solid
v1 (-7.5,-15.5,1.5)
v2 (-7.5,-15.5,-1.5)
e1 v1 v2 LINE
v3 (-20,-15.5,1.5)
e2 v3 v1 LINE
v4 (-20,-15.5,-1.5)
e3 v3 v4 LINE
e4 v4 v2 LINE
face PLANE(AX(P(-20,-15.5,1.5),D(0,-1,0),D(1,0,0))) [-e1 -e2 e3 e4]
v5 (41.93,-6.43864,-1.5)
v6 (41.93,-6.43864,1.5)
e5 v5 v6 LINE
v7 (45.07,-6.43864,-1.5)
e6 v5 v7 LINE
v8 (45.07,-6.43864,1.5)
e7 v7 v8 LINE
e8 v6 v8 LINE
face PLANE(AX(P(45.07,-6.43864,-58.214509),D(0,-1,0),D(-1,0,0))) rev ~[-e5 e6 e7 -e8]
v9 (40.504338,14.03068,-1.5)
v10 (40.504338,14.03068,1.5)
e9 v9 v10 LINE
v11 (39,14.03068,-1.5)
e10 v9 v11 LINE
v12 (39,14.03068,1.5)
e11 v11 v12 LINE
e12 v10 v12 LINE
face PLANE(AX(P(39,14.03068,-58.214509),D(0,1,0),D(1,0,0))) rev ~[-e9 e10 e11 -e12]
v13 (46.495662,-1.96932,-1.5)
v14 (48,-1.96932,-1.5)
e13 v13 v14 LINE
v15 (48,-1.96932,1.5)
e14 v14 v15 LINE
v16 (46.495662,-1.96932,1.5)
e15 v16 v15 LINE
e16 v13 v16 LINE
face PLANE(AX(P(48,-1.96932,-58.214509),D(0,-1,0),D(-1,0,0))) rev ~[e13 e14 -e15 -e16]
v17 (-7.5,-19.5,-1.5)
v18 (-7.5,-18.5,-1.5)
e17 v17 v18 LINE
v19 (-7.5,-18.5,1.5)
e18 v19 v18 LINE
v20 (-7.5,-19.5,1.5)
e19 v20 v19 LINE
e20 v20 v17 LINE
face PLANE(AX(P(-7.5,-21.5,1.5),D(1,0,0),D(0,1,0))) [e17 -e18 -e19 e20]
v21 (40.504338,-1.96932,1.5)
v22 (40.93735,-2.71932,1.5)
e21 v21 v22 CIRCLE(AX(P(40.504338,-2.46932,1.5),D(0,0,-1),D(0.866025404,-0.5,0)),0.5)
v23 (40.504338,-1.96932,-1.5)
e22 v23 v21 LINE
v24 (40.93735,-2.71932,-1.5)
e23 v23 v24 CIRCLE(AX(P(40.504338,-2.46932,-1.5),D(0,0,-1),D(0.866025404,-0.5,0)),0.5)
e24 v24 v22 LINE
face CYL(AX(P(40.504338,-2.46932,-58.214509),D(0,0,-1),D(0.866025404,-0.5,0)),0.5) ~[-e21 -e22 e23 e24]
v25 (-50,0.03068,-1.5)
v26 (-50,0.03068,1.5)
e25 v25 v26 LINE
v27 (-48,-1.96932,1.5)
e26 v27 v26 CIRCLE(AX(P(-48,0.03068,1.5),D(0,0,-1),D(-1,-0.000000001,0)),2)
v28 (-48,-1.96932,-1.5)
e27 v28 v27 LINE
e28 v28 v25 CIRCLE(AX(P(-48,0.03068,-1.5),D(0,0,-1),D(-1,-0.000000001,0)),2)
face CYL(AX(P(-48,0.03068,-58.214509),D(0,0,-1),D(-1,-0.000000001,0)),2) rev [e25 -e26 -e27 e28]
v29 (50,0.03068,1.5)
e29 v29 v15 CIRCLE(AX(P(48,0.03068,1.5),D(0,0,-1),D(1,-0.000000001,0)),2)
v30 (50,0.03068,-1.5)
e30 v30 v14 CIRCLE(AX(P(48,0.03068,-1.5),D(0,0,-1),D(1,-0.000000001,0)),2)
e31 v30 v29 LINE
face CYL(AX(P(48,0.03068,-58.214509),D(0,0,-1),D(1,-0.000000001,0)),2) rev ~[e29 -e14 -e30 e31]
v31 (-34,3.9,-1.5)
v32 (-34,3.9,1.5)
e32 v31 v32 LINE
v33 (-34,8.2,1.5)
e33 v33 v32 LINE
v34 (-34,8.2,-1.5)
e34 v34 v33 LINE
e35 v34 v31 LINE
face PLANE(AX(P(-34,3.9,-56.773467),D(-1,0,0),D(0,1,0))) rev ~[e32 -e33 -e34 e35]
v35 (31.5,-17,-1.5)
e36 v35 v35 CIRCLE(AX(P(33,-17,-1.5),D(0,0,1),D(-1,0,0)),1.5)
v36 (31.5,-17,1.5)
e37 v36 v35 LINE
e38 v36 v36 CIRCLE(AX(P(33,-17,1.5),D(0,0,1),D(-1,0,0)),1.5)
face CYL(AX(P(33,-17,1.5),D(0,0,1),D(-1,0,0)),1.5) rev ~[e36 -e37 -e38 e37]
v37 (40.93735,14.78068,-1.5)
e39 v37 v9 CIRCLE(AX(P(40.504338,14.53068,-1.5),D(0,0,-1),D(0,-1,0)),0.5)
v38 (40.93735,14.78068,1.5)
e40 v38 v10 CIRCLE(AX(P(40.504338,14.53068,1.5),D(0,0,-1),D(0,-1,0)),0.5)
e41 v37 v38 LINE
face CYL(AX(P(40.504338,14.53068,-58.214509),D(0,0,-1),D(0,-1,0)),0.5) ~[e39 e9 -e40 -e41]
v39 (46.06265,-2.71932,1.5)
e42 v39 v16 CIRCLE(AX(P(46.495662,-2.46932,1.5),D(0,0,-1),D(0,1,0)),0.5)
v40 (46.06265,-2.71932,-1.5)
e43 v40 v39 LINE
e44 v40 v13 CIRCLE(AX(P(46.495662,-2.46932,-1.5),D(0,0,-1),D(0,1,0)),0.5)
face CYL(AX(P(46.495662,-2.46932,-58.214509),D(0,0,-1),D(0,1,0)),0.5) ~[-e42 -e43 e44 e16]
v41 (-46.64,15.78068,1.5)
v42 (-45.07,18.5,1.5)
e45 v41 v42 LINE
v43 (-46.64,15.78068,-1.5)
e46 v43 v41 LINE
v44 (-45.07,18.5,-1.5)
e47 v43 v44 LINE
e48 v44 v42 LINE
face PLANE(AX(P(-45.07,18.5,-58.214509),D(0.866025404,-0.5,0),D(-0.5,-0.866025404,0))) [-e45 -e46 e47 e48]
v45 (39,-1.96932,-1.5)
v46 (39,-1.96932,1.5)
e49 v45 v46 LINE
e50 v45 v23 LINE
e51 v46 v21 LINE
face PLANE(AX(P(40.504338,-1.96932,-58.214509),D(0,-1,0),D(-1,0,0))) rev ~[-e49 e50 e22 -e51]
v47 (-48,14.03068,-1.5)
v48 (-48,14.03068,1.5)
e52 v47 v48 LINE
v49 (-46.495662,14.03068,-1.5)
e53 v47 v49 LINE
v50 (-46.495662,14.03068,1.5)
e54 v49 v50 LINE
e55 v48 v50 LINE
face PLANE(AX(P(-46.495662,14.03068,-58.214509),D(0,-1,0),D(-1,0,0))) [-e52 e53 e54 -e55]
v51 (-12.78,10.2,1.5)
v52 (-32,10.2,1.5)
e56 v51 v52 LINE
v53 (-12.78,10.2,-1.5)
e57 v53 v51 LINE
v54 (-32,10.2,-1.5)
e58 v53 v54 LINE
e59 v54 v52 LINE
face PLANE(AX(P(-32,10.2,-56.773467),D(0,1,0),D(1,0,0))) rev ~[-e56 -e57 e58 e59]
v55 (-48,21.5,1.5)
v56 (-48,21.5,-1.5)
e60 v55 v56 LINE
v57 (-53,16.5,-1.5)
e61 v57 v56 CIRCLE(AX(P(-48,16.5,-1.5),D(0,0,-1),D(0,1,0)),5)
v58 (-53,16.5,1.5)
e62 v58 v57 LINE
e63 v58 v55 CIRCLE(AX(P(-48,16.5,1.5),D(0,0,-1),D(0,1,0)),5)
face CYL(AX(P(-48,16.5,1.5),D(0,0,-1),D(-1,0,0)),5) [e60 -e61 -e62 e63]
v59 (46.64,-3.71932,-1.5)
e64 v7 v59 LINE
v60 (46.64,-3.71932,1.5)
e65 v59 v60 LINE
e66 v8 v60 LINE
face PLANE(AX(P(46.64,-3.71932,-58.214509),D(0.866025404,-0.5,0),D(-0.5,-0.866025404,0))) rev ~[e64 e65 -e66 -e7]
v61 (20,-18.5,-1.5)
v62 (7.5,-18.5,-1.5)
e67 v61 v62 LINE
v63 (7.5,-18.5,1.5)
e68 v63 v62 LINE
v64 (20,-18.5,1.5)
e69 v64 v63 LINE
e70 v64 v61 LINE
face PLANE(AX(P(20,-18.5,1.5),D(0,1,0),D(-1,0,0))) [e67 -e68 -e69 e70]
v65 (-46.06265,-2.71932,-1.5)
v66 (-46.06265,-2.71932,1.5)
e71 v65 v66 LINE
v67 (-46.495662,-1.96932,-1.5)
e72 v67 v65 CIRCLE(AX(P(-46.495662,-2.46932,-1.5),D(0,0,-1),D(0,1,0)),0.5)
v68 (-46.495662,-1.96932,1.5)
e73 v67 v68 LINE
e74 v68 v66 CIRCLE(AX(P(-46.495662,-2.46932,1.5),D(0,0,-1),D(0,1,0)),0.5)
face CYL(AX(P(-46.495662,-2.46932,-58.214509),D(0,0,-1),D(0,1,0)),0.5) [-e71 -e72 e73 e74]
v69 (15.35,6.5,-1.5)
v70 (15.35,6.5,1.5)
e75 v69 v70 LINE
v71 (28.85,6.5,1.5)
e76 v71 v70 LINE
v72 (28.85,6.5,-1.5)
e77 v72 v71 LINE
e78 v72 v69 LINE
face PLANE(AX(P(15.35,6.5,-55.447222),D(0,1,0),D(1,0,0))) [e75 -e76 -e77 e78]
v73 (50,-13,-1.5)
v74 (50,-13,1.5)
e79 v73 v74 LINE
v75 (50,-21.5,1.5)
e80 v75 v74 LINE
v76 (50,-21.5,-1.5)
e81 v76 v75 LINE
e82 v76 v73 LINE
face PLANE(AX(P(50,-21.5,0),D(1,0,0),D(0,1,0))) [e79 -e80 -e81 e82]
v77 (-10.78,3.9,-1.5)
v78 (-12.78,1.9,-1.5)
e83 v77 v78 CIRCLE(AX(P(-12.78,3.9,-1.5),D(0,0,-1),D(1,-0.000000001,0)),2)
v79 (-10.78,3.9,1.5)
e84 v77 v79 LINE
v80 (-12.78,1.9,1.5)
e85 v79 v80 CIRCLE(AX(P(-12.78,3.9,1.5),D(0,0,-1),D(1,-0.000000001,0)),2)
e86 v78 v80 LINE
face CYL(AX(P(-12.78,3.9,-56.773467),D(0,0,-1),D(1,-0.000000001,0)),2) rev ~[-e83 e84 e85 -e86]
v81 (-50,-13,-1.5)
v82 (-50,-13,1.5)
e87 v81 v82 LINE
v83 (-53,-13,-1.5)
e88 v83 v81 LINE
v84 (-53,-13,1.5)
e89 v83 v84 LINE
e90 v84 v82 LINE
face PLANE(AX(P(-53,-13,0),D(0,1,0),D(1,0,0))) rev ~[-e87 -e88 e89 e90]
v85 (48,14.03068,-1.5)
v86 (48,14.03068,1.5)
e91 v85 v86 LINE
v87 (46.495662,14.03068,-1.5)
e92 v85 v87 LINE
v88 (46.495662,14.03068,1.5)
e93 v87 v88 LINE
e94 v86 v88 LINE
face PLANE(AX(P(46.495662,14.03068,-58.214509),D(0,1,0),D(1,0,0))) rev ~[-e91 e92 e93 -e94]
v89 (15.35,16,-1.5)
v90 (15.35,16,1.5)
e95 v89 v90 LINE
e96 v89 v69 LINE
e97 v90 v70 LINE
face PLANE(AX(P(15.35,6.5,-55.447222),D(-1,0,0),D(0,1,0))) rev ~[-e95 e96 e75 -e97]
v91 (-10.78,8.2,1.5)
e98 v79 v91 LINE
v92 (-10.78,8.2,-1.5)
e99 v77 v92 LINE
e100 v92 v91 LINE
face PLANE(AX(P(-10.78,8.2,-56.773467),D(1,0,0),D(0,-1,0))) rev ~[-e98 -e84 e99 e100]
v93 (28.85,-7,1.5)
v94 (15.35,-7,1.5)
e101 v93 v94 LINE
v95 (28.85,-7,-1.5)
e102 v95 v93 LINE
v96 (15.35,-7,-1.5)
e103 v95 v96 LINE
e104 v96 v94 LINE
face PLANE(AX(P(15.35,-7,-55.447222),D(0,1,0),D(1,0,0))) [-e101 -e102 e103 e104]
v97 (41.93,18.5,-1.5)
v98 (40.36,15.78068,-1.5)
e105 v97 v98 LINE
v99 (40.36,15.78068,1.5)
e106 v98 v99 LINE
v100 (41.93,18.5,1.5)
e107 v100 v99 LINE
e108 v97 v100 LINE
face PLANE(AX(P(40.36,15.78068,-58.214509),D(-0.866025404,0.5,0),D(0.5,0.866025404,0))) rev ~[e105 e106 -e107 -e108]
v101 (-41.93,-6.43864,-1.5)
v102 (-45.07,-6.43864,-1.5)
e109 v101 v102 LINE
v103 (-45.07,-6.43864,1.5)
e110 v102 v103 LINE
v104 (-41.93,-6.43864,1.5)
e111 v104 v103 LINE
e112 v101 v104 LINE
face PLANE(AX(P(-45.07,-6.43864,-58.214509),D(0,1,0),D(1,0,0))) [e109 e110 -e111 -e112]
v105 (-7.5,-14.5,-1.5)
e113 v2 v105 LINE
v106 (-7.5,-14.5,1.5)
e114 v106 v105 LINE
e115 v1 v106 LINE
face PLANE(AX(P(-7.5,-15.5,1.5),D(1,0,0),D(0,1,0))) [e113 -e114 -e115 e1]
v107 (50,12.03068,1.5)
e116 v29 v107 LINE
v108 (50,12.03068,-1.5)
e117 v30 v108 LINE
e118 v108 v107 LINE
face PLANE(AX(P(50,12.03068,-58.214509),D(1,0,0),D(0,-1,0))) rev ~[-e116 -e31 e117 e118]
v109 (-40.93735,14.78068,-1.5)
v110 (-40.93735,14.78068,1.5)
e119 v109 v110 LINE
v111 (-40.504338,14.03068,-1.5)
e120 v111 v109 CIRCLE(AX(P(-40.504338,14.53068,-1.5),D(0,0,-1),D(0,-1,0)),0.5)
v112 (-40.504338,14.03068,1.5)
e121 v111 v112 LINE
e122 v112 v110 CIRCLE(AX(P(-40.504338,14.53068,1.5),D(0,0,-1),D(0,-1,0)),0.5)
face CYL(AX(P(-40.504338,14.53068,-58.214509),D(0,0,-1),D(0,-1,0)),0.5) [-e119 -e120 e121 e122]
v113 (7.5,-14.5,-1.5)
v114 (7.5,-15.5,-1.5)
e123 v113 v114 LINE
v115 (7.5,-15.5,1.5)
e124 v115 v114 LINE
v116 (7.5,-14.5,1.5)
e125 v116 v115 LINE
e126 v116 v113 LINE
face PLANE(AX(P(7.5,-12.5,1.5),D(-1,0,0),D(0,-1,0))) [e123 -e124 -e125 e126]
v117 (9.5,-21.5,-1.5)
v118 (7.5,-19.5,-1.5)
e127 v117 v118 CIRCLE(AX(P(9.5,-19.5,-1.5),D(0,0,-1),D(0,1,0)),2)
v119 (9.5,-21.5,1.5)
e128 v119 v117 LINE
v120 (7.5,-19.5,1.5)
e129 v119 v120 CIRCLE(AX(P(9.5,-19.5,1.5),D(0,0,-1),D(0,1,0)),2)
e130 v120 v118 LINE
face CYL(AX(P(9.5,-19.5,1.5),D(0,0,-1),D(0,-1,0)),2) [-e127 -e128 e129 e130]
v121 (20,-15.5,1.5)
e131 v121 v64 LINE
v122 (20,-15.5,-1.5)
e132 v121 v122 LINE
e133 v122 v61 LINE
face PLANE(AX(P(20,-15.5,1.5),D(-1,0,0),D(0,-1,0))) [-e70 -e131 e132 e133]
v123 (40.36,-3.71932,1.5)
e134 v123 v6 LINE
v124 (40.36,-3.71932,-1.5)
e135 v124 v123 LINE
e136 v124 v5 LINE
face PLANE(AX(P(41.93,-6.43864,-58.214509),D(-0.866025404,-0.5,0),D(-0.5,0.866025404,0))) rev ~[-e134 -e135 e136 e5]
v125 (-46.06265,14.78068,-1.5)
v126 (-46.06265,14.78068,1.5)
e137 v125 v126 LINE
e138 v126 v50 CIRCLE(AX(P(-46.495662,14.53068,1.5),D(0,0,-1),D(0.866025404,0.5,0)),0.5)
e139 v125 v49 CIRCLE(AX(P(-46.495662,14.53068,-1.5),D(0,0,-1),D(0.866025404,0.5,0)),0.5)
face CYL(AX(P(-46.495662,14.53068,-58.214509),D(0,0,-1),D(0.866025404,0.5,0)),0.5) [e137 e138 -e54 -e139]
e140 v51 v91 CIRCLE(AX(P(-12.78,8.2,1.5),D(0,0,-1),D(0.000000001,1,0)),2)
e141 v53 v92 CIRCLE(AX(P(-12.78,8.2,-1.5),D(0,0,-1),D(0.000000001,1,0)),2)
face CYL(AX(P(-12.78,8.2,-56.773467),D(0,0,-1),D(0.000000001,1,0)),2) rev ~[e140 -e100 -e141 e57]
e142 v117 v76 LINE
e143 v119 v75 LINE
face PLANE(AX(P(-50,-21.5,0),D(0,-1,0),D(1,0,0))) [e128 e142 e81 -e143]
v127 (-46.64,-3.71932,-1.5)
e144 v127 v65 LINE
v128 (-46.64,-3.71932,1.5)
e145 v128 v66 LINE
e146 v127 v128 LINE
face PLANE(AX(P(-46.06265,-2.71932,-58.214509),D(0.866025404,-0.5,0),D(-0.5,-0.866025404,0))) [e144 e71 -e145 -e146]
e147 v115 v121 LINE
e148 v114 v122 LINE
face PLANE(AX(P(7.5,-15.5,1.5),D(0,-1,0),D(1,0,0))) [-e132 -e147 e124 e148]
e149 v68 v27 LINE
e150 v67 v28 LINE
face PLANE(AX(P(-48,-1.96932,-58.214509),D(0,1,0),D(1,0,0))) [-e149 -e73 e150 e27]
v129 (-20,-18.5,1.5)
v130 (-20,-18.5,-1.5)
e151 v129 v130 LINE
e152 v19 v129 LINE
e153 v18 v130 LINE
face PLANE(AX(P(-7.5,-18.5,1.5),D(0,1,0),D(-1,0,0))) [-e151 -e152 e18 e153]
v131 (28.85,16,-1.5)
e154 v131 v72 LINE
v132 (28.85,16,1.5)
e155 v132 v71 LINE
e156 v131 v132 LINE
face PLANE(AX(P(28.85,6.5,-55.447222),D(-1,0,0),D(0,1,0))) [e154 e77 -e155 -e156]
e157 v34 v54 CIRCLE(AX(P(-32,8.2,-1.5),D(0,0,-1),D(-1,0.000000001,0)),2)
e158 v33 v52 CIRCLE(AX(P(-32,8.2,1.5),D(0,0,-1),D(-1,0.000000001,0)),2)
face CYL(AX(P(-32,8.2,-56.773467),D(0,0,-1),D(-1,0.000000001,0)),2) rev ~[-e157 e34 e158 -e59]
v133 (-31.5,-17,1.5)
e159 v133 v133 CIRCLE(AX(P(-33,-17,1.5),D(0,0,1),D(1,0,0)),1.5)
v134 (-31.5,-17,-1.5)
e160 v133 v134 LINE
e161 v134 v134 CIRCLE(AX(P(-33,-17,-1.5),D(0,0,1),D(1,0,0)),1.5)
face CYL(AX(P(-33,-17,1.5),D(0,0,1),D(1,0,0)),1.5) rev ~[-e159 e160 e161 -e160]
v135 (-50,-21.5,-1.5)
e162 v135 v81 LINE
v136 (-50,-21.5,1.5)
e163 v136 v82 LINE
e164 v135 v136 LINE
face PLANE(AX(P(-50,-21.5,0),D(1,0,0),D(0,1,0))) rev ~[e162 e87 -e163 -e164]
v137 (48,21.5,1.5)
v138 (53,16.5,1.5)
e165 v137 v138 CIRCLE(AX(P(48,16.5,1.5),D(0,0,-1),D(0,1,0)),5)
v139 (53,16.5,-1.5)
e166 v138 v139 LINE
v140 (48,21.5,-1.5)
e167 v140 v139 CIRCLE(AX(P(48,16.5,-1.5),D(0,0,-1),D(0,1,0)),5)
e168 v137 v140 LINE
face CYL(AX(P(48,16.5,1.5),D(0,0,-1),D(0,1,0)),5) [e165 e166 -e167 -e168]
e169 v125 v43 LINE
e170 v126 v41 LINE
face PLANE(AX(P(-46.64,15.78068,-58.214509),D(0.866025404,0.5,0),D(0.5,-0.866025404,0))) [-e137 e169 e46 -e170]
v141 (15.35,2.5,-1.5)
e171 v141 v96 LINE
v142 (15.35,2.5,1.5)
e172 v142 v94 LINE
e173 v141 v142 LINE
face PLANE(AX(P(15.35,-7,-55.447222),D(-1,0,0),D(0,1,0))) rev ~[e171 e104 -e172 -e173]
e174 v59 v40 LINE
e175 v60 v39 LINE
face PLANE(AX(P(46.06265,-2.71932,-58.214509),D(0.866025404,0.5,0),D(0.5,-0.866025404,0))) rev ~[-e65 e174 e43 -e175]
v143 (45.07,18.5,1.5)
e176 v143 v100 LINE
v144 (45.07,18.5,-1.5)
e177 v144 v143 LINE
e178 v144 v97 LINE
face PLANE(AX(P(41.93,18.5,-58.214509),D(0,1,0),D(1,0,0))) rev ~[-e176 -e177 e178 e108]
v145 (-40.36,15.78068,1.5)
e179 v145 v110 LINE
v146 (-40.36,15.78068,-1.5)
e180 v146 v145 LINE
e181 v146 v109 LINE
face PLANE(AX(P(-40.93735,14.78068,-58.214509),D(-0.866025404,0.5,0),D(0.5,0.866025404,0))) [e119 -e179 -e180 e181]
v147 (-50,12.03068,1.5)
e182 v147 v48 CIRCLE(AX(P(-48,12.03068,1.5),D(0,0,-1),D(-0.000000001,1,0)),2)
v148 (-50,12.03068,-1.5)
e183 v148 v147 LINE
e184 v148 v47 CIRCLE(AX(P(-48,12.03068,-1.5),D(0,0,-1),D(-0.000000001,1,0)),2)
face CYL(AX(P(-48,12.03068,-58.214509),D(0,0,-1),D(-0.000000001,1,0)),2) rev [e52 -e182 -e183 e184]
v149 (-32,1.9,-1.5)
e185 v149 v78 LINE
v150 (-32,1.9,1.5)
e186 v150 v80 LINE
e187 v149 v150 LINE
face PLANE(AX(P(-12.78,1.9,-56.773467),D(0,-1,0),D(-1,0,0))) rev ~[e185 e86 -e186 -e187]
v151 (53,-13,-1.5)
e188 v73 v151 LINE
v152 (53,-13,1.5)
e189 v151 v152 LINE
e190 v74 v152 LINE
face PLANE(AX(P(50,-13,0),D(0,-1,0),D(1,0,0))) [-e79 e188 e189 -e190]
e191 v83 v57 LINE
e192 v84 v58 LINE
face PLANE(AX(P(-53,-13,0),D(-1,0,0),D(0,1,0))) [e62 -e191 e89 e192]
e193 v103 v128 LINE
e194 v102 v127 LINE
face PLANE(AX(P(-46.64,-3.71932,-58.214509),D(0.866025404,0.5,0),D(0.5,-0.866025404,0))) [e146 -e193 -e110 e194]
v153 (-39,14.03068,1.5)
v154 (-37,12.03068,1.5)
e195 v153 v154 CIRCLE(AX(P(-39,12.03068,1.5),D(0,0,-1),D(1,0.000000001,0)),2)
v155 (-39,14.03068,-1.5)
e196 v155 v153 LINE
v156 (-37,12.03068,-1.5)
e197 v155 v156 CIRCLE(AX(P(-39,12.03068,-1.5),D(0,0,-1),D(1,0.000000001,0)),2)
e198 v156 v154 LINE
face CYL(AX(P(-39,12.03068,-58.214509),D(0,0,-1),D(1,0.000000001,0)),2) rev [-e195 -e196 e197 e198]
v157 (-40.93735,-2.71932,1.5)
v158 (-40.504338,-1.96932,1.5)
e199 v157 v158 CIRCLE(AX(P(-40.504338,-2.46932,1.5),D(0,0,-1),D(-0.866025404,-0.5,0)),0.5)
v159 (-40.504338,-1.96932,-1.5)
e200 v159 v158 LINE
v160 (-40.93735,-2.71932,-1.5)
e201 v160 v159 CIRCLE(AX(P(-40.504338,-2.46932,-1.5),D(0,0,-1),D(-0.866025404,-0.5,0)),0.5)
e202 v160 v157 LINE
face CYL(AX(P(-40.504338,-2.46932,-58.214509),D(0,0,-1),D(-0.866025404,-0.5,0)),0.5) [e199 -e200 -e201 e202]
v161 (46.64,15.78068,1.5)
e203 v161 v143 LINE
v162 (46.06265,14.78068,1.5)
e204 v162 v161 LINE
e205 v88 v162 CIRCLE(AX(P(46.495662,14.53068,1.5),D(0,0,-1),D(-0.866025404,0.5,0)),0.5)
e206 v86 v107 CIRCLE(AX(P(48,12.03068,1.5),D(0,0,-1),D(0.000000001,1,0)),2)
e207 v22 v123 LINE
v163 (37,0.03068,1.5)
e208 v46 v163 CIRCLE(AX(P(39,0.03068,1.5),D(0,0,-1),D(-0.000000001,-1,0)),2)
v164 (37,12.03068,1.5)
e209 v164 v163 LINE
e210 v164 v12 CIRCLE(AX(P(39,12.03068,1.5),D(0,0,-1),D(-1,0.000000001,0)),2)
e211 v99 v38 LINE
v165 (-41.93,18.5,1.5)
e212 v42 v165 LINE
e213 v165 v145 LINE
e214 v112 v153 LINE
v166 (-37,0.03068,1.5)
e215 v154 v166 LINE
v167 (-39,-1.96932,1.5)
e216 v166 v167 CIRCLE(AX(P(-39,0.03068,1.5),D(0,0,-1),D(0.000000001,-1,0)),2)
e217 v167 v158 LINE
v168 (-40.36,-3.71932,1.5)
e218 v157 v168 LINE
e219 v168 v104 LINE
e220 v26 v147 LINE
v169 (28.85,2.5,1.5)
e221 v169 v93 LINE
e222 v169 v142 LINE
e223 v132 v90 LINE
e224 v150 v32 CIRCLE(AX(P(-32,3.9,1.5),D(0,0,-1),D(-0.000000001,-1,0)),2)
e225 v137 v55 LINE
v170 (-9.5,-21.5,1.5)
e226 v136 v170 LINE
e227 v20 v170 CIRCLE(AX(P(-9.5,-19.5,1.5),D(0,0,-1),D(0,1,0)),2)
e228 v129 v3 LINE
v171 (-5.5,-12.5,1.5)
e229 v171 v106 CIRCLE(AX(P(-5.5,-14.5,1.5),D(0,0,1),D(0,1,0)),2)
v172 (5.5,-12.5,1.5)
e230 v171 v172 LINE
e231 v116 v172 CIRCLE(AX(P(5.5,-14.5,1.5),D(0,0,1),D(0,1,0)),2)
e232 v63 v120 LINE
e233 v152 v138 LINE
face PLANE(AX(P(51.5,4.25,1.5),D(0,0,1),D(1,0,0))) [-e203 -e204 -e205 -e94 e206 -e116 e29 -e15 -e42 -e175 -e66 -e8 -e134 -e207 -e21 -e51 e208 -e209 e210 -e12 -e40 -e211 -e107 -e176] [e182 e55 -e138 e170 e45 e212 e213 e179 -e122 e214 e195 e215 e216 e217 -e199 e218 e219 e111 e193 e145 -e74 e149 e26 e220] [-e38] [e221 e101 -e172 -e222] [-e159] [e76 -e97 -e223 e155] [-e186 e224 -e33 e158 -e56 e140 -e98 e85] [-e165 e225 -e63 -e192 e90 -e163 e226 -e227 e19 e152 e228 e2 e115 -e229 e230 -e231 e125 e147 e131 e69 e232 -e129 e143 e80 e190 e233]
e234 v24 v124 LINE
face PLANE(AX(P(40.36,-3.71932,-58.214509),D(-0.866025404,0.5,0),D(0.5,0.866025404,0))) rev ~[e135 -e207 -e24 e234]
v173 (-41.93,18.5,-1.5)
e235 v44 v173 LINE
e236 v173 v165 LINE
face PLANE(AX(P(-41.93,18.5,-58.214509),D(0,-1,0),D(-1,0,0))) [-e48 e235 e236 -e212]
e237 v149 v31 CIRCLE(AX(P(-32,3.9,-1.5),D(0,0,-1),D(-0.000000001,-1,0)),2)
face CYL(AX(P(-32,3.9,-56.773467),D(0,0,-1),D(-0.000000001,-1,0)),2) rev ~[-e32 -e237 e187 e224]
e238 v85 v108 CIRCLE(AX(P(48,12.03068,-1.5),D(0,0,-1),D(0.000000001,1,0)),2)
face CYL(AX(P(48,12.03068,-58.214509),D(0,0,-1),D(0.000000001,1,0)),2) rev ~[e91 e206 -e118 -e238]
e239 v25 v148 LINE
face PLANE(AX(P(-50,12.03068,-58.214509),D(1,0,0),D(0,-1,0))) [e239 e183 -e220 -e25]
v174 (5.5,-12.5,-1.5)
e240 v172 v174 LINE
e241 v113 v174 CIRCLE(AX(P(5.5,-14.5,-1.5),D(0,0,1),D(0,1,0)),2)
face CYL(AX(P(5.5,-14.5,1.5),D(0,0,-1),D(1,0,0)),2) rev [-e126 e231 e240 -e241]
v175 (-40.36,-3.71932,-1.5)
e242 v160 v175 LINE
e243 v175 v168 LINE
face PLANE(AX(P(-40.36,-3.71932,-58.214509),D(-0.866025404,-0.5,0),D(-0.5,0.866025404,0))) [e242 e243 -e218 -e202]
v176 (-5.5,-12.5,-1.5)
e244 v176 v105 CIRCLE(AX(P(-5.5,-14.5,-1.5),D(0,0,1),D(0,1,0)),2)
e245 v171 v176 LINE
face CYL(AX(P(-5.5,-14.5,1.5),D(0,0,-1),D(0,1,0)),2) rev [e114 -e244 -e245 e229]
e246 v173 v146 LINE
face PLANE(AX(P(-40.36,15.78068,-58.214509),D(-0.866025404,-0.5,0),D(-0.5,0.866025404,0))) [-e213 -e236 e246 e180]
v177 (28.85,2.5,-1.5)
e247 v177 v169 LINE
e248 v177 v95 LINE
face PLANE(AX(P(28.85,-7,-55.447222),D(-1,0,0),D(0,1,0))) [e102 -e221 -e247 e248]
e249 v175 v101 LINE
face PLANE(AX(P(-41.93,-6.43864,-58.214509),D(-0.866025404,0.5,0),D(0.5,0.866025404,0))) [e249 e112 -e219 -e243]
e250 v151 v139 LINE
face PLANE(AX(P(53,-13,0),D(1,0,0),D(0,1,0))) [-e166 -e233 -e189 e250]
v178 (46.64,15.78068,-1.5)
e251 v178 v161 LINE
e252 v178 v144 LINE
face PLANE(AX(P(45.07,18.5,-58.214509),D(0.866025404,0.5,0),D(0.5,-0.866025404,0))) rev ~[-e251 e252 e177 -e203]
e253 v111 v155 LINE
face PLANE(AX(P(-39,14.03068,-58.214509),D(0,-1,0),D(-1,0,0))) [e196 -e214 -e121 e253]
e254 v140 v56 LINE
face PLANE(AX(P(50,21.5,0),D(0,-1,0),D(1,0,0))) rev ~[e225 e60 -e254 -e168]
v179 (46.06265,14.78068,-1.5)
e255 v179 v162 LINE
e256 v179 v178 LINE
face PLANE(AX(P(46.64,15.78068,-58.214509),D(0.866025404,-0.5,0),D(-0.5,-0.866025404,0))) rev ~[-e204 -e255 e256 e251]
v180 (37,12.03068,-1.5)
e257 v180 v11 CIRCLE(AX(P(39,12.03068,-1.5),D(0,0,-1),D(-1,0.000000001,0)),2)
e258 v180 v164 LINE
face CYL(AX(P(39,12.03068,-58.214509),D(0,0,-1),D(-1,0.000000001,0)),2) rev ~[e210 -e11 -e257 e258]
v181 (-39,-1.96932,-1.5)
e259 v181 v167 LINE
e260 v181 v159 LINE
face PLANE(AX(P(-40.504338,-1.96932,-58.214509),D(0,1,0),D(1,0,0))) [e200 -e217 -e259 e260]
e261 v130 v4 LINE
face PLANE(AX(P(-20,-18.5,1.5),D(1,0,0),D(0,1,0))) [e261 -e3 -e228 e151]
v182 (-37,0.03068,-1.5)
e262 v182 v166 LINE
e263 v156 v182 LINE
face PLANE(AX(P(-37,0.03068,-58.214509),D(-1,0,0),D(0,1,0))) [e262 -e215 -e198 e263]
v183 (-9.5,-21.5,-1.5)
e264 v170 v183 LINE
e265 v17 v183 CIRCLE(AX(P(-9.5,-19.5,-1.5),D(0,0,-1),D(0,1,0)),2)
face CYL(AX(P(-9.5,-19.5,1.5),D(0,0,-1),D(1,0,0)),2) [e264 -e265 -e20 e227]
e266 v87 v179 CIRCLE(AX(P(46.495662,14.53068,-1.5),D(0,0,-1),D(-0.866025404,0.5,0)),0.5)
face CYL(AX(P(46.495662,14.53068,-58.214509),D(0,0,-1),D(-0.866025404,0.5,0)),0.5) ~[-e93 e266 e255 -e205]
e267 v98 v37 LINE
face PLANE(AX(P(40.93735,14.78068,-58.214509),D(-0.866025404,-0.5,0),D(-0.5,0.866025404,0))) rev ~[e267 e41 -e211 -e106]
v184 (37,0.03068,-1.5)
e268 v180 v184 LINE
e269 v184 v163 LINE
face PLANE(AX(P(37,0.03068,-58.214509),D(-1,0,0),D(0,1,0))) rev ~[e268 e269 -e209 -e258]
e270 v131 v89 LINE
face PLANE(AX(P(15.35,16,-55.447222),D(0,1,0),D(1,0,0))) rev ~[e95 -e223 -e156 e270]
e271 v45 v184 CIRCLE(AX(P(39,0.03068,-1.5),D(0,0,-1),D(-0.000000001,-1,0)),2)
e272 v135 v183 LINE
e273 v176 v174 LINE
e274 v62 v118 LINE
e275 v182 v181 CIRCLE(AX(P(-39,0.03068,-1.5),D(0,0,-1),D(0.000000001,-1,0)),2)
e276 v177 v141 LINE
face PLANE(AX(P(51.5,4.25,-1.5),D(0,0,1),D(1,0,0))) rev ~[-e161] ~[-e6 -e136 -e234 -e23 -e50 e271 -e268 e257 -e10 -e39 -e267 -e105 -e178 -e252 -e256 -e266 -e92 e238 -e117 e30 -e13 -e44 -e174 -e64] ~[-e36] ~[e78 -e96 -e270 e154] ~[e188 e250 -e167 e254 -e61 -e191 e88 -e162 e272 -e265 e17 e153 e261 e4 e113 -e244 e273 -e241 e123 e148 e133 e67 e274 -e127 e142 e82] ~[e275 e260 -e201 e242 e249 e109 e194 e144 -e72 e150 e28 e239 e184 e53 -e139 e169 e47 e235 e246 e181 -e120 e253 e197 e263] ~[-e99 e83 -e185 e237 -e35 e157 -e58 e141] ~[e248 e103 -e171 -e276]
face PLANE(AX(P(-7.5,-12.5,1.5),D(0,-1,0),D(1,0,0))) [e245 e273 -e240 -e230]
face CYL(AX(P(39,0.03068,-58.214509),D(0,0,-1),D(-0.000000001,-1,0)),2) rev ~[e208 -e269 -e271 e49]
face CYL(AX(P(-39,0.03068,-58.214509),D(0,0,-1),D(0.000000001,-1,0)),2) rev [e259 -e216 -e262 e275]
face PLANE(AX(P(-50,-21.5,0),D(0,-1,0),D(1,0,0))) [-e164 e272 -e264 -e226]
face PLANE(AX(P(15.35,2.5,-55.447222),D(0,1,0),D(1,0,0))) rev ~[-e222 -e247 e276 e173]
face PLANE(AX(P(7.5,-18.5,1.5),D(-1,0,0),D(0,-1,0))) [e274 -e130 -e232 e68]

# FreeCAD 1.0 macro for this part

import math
import FreeCAD as App
import Part
import Sketcher

V = App.Vector
Q = App.Units.Quantity


def edges_at(feature, points):
    """Names of the edges that pass closest to the given points."""
    edges = feature.Shape.Edges
    near = lambda p: min(range(len(edges)), key=lambda i: edges[i].distToShape(Part.Vertex(*p))[0])
    return sorted({f"Edge{near(p) + 1}" for p in points})


def add_polygon(sketch, points):
    """Adds a closed chain of lines whose ends are joined by coincident constraints."""
    first, n = sketch.GeometryCount, len(points)
    for a, b in zip(points, points[1:] + points[:1]):
        sketch.addGeometry(Part.LineSegment(App.Vector(*a, 0), App.Vector(*b, 0)), False)
    for i in range(n):
        sketch.addConstraint(Sketcher.Constraint("Coincident", first + i, 2, first + (i + 1) % n, 1))

doc = App.newDocument("Part")
body = doc.addObject("PartDesign::Body", "Body")

sketch1 = doc.addObject("Sketcher::SketchObject", "Sketch")
body.addObject(sketch1)
sketch1.AttachmentSupport = (doc.XY_Plane, [""])
sketch1.MapMode = "FlatFace"
add_polygon(sketch1, [(-50, 22), (-50, -22), (50, -22), (50, 22)])
sketch1.addConstraint(Sketcher.Constraint("Vertical", 0))
sketch1.addConstraint(Sketcher.Constraint("Horizontal", 1))
sketch1.addConstraint(Sketcher.Constraint("Vertical", 2))
sketch1.addConstraint(Sketcher.Constraint("Horizontal", 3))
sketch1.addConstraint(Sketcher.Constraint("Symmetric", 0, 2, 2, 2, -1, 1))
sketch1.addConstraint(Sketcher.Constraint("DistanceX", 1, 1, 1, 2, 100.0))
sketch1.addConstraint(Sketcher.Constraint("DistanceY", 0, 2, 0, 1, 43.0))
pad1 = doc.addObject("PartDesign::Pad", "Pad")
body.addObject(pad1)
pad1.Profile = sketch1
pad1.Length = 3
pad1.Midplane = True

sketch2 = doc.addObject("Sketcher::SketchObject", "Sketch001")
body.addObject(sketch2)
sketch2.AttachmentSupport = (doc.XY_Plane, [""])
sketch2.MapMode = "FlatFace"
sketch2.AttachmentOffset = App.Placement(V(0, 0, 1.5), App.Rotation())
sketch2.addGeometry(Part.Circle(V(-33, -17, 0), V(0, 0, 1), 1.5), False)
sketch2.addGeometry(Part.Circle(V(33, -17, 0), V(0, 0, 1), 1.5), False)
add_polygon(sketch2, [(-7.5, -15.5), (-20, -15.5), (-20, -18.5), (-7.5, -18.5), (-7.5, -21.5), (7.5, -21.5), (7.5, -18.5), (20, -18.5), (20, -15.5), (7.5, -15.5), (7.5, -12.5), (-7.5, -12.5)])
sketch2.addConstraint(Sketcher.Constraint("Horizontal", 2))
sketch2.addConstraint(Sketcher.Constraint("Vertical", 3))
sketch2.addConstraint(Sketcher.Constraint("Horizontal", 4))
sketch2.addConstraint(Sketcher.Constraint("Vertical", 5))
sketch2.addConstraint(Sketcher.Constraint("Horizontal", 6))
sketch2.addConstraint(Sketcher.Constraint("Vertical", 7))
sketch2.addConstraint(Sketcher.Constraint("Horizontal", 8))
sketch2.addConstraint(Sketcher.Constraint("Vertical", 9))
sketch2.addConstraint(Sketcher.Constraint("Horizontal", 10))
sketch2.addConstraint(Sketcher.Constraint("Vertical", 11))
sketch2.addConstraint(Sketcher.Constraint("Horizontal", 12))
sketch2.addConstraint(Sketcher.Constraint("Vertical", 13))
sketch2.addConstraint(Sketcher.Constraint("Equal", 0, 1))
sketch2.addConstraint(Sketcher.Constraint("Symmetric", 0, 3, 1, 3, -2))
sketch2.addConstraint(Sketcher.Constraint("Symmetric", 4, 2, 7, 2, -2))
sketch2.addConstraint(Sketcher.Constraint("Symmetric", 2, 2, 9, 2, -2))
sketch2.addConstraint(Sketcher.Constraint("Vertical", 7, 2, 10, 2))
sketch2.addConstraint(Sketcher.Constraint("Vertical", 5, 2, 12, 2))
sketch2.addConstraint(Sketcher.Constraint("Equal", 3, 5))
sketch2.addConstraint(Sketcher.Constraint("Equal", 9, 11))
sketch2.addConstraint(Sketcher.Constraint("Diameter", 0, 3.0))
sketch2.addConstraint(Sketcher.Constraint("DistanceX", 6, 1, 6, 2, 15.0))
sketch2.addConstraint(Sketcher.Constraint("DistanceY", 3, 2, 3, 1, 3.0))
sketch2.addConstraint(Sketcher.Constraint("DistanceX", 2, 2, 2, 1, 12.5))
sketch2.addConstraint(Sketcher.Constraint("DistanceX", 0, 3, -1, 1, 33.0))
sketch2.addConstraint(Sketcher.Constraint("DistanceY", 0, 3, -1, 1, 17.0))
sketch2.addConstraint(Sketcher.Constraint("DistanceY", 2, 2, -1, 1, 15.5))
pocket1 = doc.addObject("PartDesign::Pocket", "Pocket")
body.addObject(pocket1)
pocket1.Profile = sketch2
pocket1.Type = "ThroughAll"

sketch3 = doc.addObject("Sketcher::SketchObject", "Sketch002")
body.addObject(sketch3)
sketch3.AttachmentSupport = (doc.XY_Plane, [""])
sketch3.MapMode = "FlatFace"
add_polygon(sketch3, [(15, 2), (15, -7), (29, -7), (29, 2)])
add_polygon(sketch3, [(15, 16), (15, 6), (29, 6), (29, 16)])
sketch3.addConstraint(Sketcher.Constraint("Vertical", 0))
sketch3.addConstraint(Sketcher.Constraint("Horizontal", 1))
sketch3.addConstraint(Sketcher.Constraint("Vertical", 2))
sketch3.addConstraint(Sketcher.Constraint("Horizontal", 3))
sketch3.addConstraint(Sketcher.Constraint("Vertical", 4))
sketch3.addConstraint(Sketcher.Constraint("Horizontal", 5))
sketch3.addConstraint(Sketcher.Constraint("Vertical", 6))
sketch3.addConstraint(Sketcher.Constraint("Horizontal", 7))
sketch3.addConstraint(Sketcher.Constraint("Vertical", 3, 2, 4, 2))
sketch3.addConstraint(Sketcher.Constraint("Vertical", 2, 2, 5, 2))
sketch3.addConstraint(Sketcher.Constraint("Equal", 2, 4))
sketch3.addConstraint(Sketcher.Constraint("DistanceX", 1, 1, 1, 2, 13.5))
sketch3.addConstraint(Sketcher.Constraint("DistanceY", 0, 2, 0, 1, 9.5))
sketch3.addConstraint(Sketcher.Constraint("DistanceY", 0, 2, -1, 1, 7.0))
sketch3.addConstraint(Sketcher.Constraint("DistanceY", -1, 1, 6, 2, 16.0))
sketch3.addConstraint(Sketcher.Constraint("DistanceX", -1, 1, 0, 2, 15.35))
pocket2 = doc.addObject("PartDesign::Pocket", "Pocket001")
body.addObject(pocket2)
pocket2.Profile = sketch3
pocket2.Type = "ThroughAll"
pocket2.Midplane = True

sketch4 = doc.addObject("Sketcher::SketchObject", "Sketch003")
body.addObject(sketch4)
sketch4.AttachmentSupport = (doc.XY_Plane, [""])
sketch4.MapMode = "FlatFace"
add_polygon(sketch4, [(-53, 21.5), (-53, -13), (-50, -13), (-50, 21.5)])
add_polygon(sketch4, [(50, 21.5), (50, -13), (53, -13), (53, 21.5)])
sketch4.addConstraint(Sketcher.Constraint("Vertical", 0))
sketch4.addConstraint(Sketcher.Constraint("Horizontal", 1))
sketch4.addConstraint(Sketcher.Constraint("Vertical", 2))
sketch4.addConstraint(Sketcher.Constraint("Horizontal", 3))
sketch4.addConstraint(Sketcher.Constraint("Vertical", 4))
sketch4.addConstraint(Sketcher.Constraint("Horizontal", 5))
sketch4.addConstraint(Sketcher.Constraint("Vertical", 6))
sketch4.addConstraint(Sketcher.Constraint("Horizontal", 7))
sketch4.addConstraint(Sketcher.Constraint("Symmetric", 1, 2, 4, 2, -2))
sketch4.addConstraint(Sketcher.Constraint("Symmetric", 3, 2, 6, 2, -2))
sketch4.addConstraint(Sketcher.Constraint("DistanceX", 1, 1, 1, 2, 3.0))
sketch4.addConstraint(Sketcher.Constraint("DistanceY", 0, 2, 0, 1, 34.5))
sketch4.addConstraint(Sketcher.Constraint("DistanceX", 0, 2, -1, 1, 53.0))
sketch4.addConstraint(Sketcher.Constraint("DistanceY", 0, 2, -1, 1, 13.0))
pad2 = doc.addObject("PartDesign::Pad", "Pad001")
body.addObject(pad2)
pad2.Profile = sketch4
pad2.Length = 3
pad2.Midplane = True
doc.recompute()

fillet = doc.addObject("PartDesign::Fillet", "Fillet")
body.addObject(fillet)
fillet.Base = (pad2, edges_at(pad2, [
    (-7.5, -21.5, 0),
    (-7.5, -12.5, 0),
    (7.5, -12.5, 0),
    (7.5, -21.5, 0),
]))
fillet.Radius = 2
doc.recompute()

fillet2 = doc.addObject("PartDesign::Fillet", "Fillet001")
body.addObject(fillet2)
fillet2.Base = (fillet, edges_at(fillet, [(53, 21.5, 0), (-53, 21.5, 0)]))
fillet2.Radius = 5

sketch5 = doc.addObject("Sketcher::SketchObject", "Sketch004")
body.addObject(sketch5)
sketch5.AttachmentSupport = (doc.XY_Plane, [""])
sketch5.MapMode = "FlatFace"
sketch5.addGeometry(Part.ArcOfCircle(Part.Circle(V(-40.5, 14.5, 0), V(0, 0, 1), 0.5), math.radians(150), math.radians(270)), False)
sketch5.addGeometry(Part.LineSegment(V(-40.9, 14.8, 0), V(-40.4, 15.8, 0)), False)
sketch5.addGeometry(Part.LineSegment(V(-40.4, 15.8, 0), V(-41.9, 18.5, 0)), False)
sketch5.addGeometry(Part.LineSegment(V(-41.9, 18.5, 0), V(-45.1, 18.5, 0)), False)
sketch5.addGeometry(Part.LineSegment(V(-45.1, 18.5, 0), V(-46.6, 15.8, 0)), False)
sketch5.addGeometry(Part.LineSegment(V(-46.6, 15.8, 0), V(-46.1, 14.8, 0)), False)
sketch5.addGeometry(Part.ArcOfCircle(Part.Circle(V(-46.5, 14.5, 0), V(0, 0, 1), 0.5), math.radians(-90), math.radians(30)), False)
sketch5.addGeometry(Part.LineSegment(V(-46.5, 14, 0), V(-48, 14, 0)), False)
sketch5.addGeometry(Part.ArcOfCircle(Part.Circle(V(-48, 12, 0), V(0, 0, 1), 2), math.radians(90), math.radians(180)), False)
sketch5.addGeometry(Part.LineSegment(V(-50, 12, 0), V(-50, 0, 0)), False)
sketch5.addGeometry(Part.ArcOfCircle(Part.Circle(V(-48, 0, 0), V(0, 0, 1), 2), math.radians(-180), math.radians(-90)), False)
sketch5.addGeometry(Part.LineSegment(V(-48, -2, 0), V(-46.5, -2, 0)), False)
sketch5.addGeometry(Part.ArcOfCircle(Part.Circle(V(-46.5, -2.5, 0), V(0, 0, 1), 0.5), math.radians(-30), math.radians(90)), False)
sketch5.addGeometry(Part.LineSegment(V(-46.1, -2.7, 0), V(-46.6, -3.7, 0)), False)
sketch5.addGeometry(Part.LineSegment(V(-46.6, -3.7, 0), V(-45.1, -6.4, 0)), False)
sketch5.addGeometry(Part.LineSegment(V(-45.1, -6.4, 0), V(-41.9, -6.4, 0)), False)
sketch5.addGeometry(Part.LineSegment(V(-41.9, -6.4, 0), V(-40.4, -3.7, 0)), False)
sketch5.addGeometry(Part.LineSegment(V(-40.4, -3.7, 0), V(-40.9, -2.7, 0)), False)
sketch5.addGeometry(Part.ArcOfCircle(Part.Circle(V(-40.5, -2.5, 0), V(0, 0, 1), 0.5), math.radians(90), math.radians(210)), False)
sketch5.addGeometry(Part.LineSegment(V(-40.5, -2, 0), V(-39, -2, 0)), False)
sketch5.addGeometry(Part.ArcOfCircle(Part.Circle(V(-39, 0, 0), V(0, 0, 1), 2), math.radians(-90), math.radians(0)), False)
sketch5.addGeometry(Part.LineSegment(V(-37, 0, 0), V(-37, 12, 0)), False)
sketch5.addGeometry(Part.ArcOfCircle(Part.Circle(V(-39, 12, 0), V(0, 0, 1), 2), math.radians(0), math.radians(90)), False)
sketch5.addGeometry(Part.LineSegment(V(-39, 14, 0), V(-40.5, 14, 0)), False)
sketch5.addGeometry(Part.ArcOfCircle(Part.Circle(V(40.5, 14.5, 0), V(0, 0, 1), 0.5), math.radians(-90), math.radians(30)), False)
sketch5.addGeometry(Part.LineSegment(V(40.5, 14, 0), V(39, 14, 0)), False)
sketch5.addGeometry(Part.ArcOfCircle(Part.Circle(V(39, 12, 0), V(0, 0, 1), 2), math.radians(90), math.radians(180)), False)
sketch5.addGeometry(Part.LineSegment(V(37, 12, 0), V(37, 0, 0)), False)
sketch5.addGeometry(Part.ArcOfCircle(Part.Circle(V(39, 0, 0), V(0, 0, 1), 2), math.radians(-180), math.radians(-90)), False)
sketch5.addGeometry(Part.LineSegment(V(39, -2, 0), V(40.5, -2, 0)), False)
sketch5.addGeometry(Part.ArcOfCircle(Part.Circle(V(40.5, -2.5, 0), V(0, 0, 1), 0.5), math.radians(-30), math.radians(90)), False)
sketch5.addGeometry(Part.LineSegment(V(40.9, -2.7, 0), V(40.4, -3.7, 0)), False)
sketch5.addGeometry(Part.LineSegment(V(40.4, -3.7, 0), V(41.9, -6.4, 0)), False)
sketch5.addGeometry(Part.LineSegment(V(41.9, -6.4, 0), V(45.1, -6.4, 0)), False)
sketch5.addGeometry(Part.LineSegment(V(45.1, -6.4, 0), V(46.6, -3.7, 0)), False)
sketch5.addGeometry(Part.LineSegment(V(46.6, -3.7, 0), V(46.1, -2.7, 0)), False)
sketch5.addGeometry(Part.ArcOfCircle(Part.Circle(V(46.5, -2.5, 0), V(0, 0, 1), 0.5), math.radians(90), math.radians(210)), False)
sketch5.addGeometry(Part.LineSegment(V(46.5, -2, 0), V(48, -2, 0)), False)
sketch5.addGeometry(Part.ArcOfCircle(Part.Circle(V(48, 0, 0), V(0, 0, 1), 2), math.radians(-90), math.radians(0)), False)
sketch5.addGeometry(Part.LineSegment(V(50, 0, 0), V(50, 12, 0)), False)
sketch5.addGeometry(Part.ArcOfCircle(Part.Circle(V(48, 12, 0), V(0, 0, 1), 2), math.radians(0), math.radians(90)), False)
sketch5.addGeometry(Part.LineSegment(V(48, 14, 0), V(46.5, 14, 0)), False)
sketch5.addGeometry(Part.ArcOfCircle(Part.Circle(V(46.5, 14.5, 0), V(0, 0, 1), 0.5), math.radians(150), math.radians(270)), False)
sketch5.addGeometry(Part.LineSegment(V(46.1, 14.8, 0), V(46.6, 15.8, 0)), False)
sketch5.addGeometry(Part.LineSegment(V(46.6, 15.8, 0), V(45.1, 18.5, 0)), False)
sketch5.addGeometry(Part.LineSegment(V(45.1, 18.5, 0), V(41.9, 18.5, 0)), False)
sketch5.addGeometry(Part.LineSegment(V(41.9, 18.5, 0), V(40.4, 15.8, 0)), False)
sketch5.addGeometry(Part.LineSegment(V(40.4, 15.8, 0), V(40.9, 14.8, 0)), False)
sketch5.addConstraint(Sketcher.Constraint("Tangent", 0, 1, 1, 1))
sketch5.addConstraint(Sketcher.Constraint("Coincident", 1, 2, 2, 1))
sketch5.addConstraint(Sketcher.Constraint("Coincident", 2, 2, 3, 1))
sketch5.addConstraint(Sketcher.Constraint("Coincident", 3, 2, 4, 1))
sketch5.addConstraint(Sketcher.Constraint("Coincident", 4, 2, 5, 1))
sketch5.addConstraint(Sketcher.Constraint("Tangent", 5, 2, 6, 2))
sketch5.addConstraint(Sketcher.Constraint("Tangent", 6, 1, 7, 1))
sketch5.addConstraint(Sketcher.Constraint("Tangent", 7, 2, 8, 1))
sketch5.addConstraint(Sketcher.Constraint("Tangent", 8, 2, 9, 1))
sketch5.addConstraint(Sketcher.Constraint("Tangent", 9, 2, 10, 1))
sketch5.addConstraint(Sketcher.Constraint("Tangent", 10, 2, 11, 1))
sketch5.addConstraint(Sketcher.Constraint("Tangent", 11, 2, 12, 2))
sketch5.addConstraint(Sketcher.Constraint("Tangent", 12, 1, 13, 1))
sketch5.addConstraint(Sketcher.Constraint("Coincident", 13, 2, 14, 1))
sketch5.addConstraint(Sketcher.Constraint("Coincident", 14, 2, 15, 1))
sketch5.addConstraint(Sketcher.Constraint("Coincident", 15, 2, 16, 1))
sketch5.addConstraint(Sketcher.Constraint("Coincident", 16, 2, 17, 1))
sketch5.addConstraint(Sketcher.Constraint("Tangent", 17, 2, 18, 2))
sketch5.addConstraint(Sketcher.Constraint("Tangent", 18, 1, 19, 1))
sketch5.addConstraint(Sketcher.Constraint("Tangent", 19, 2, 20, 1))
sketch5.addConstraint(Sketcher.Constraint("Tangent", 20, 2, 21, 1))
sketch5.addConstraint(Sketcher.Constraint("Tangent", 21, 2, 22, 1))
sketch5.addConstraint(Sketcher.Constraint("Tangent", 22, 2, 23, 1))
sketch5.addConstraint(Sketcher.Constraint("Tangent", 23, 2, 0, 2))
sketch5.addConstraint(Sketcher.Constraint("Tangent", 24, 1, 25, 1))
sketch5.addConstraint(Sketcher.Constraint("Tangent", 25, 2, 26, 1))
sketch5.addConstraint(Sketcher.Constraint("Tangent", 26, 2, 27, 1))
sketch5.addConstraint(Sketcher.Constraint("Tangent", 27, 2, 28, 1))
sketch5.addConstraint(Sketcher.Constraint("Tangent", 28, 2, 29, 1))
sketch5.addConstraint(Sketcher.Constraint("Tangent", 29, 2, 30, 2))
sketch5.addConstraint(Sketcher.Constraint("Tangent", 30, 1, 31, 1))
sketch5.addConstraint(Sketcher.Constraint("Coincident", 31, 2, 32, 1))
sketch5.addConstraint(Sketcher.Constraint("Coincident", 32, 2, 33, 1))
sketch5.addConstraint(Sketcher.Constraint("Coincident", 33, 2, 34, 1))
sketch5.addConstraint(Sketcher.Constraint("Coincident", 34, 2, 35, 1))
sketch5.addConstraint(Sketcher.Constraint("Tangent", 35, 2, 36, 2))
sketch5.addConstraint(Sketcher.Constraint("Tangent", 36, 1, 37, 1))
sketch5.addConstraint(Sketcher.Constraint("Tangent", 37, 2, 38, 1))
sketch5.addConstraint(Sketcher.Constraint("Tangent", 38, 2, 39, 1))
sketch5.addConstraint(Sketcher.Constraint("Tangent", 39, 2, 40, 1))
sketch5.addConstraint(Sketcher.Constraint("Tangent", 40, 2, 41, 1))
sketch5.addConstraint(Sketcher.Constraint("Tangent", 41, 2, 42, 2))
sketch5.addConstraint(Sketcher.Constraint("Tangent", 42, 1, 43, 1))
sketch5.addConstraint(Sketcher.Constraint("Coincident", 43, 2, 44, 1))
sketch5.addConstraint(Sketcher.Constraint("Coincident", 44, 2, 45, 1))
sketch5.addConstraint(Sketcher.Constraint("Coincident", 45, 2, 46, 1))
sketch5.addConstraint(Sketcher.Constraint("Coincident", 46, 2, 47, 1))
sketch5.addConstraint(Sketcher.Constraint("Tangent", 47, 2, 24, 2))
sketch5.addConstraint(Sketcher.Constraint("Horizontal", 3))
sketch5.addConstraint(Sketcher.Constraint("Horizontal", 7))
sketch5.addConstraint(Sketcher.Constraint("Vertical", 9))
sketch5.addConstraint(Sketcher.Constraint("Horizontal", 11))
sketch5.addConstraint(Sketcher.Constraint("Horizontal", 15))
sketch5.addConstraint(Sketcher.Constraint("Horizontal", 19))
sketch5.addConstraint(Sketcher.Constraint("Vertical", 21))
sketch5.addConstraint(Sketcher.Constraint("Horizontal", 23))
sketch5.addConstraint(Sketcher.Constraint("Horizontal", 25))
sketch5.addConstraint(Sketcher.Constraint("Vertical", 27))
sketch5.addConstraint(Sketcher.Constraint("Horizontal", 29))
sketch5.addConstraint(Sketcher.Constraint("Horizontal", 33))
sketch5.addConstraint(Sketcher.Constraint("Horizontal", 37))
sketch5.addConstraint(Sketcher.Constraint("Vertical", 39))
sketch5.addConstraint(Sketcher.Constraint("Horizontal", 41))
sketch5.addConstraint(Sketcher.Constraint("Horizontal", 45))
sketch5.addConstraint(Sketcher.Constraint("Equal", 0, 6))
sketch5.addConstraint(Sketcher.Constraint("Equal", 8, 10))
sketch5.addConstraint(Sketcher.Constraint("Equal", 6, 12))
sketch5.addConstraint(Sketcher.Constraint("Equal", 12, 18))
sketch5.addConstraint(Sketcher.Constraint("Equal", 10, 20))
sketch5.addConstraint(Sketcher.Constraint("Equal", 20, 22))
sketch5.addConstraint(Sketcher.Constraint("Equal", 18, 24))
sketch5.addConstraint(Sketcher.Constraint("Equal", 22, 26))
sketch5.addConstraint(Sketcher.Constraint("Equal", 26, 28))
sketch5.addConstraint(Sketcher.Constraint("Equal", 24, 30))
sketch5.addConstraint(Sketcher.Constraint("Equal", 30, 36))
sketch5.addConstraint(Sketcher.Constraint("Equal", 28, 38))
sketch5.addConstraint(Sketcher.Constraint("Equal", 38, 40))
sketch5.addConstraint(Sketcher.Constraint("Equal", 36, 42))
sketch5.addConstraint(Sketcher.Constraint("Symmetric", 0, 3, 24, 3, -2))
sketch5.addConstraint(Sketcher.Constraint("Symmetric", 20, 3, 28, 3, -2))
sketch5.addConstraint(Sketcher.Constraint("Symmetric", 12, 3, 36, 3, -2))
sketch5.addConstraint(Sketcher.Constraint("Symmetric", 8, 3, 40, 3, -2))
sketch5.addConstraint(Sketcher.Constraint("Symmetric", 17, 2, 30, 1, -2))
sketch5.addConstraint(Sketcher.Constraint("Symmetric", 15, 2, 32, 2, -2))
sketch5.addConstraint(Sketcher.Constraint("Symmetric", 13, 2, 34, 2, -2))
sketch5.addConstraint(Sketcher.Constraint("Symmetric", 5, 2, 42, 1, -2))
sketch5.addConstraint(Sketcher.Constraint("Symmetric", 3, 2, 44, 2, -2))
sketch5.addConstraint(Sketcher.Constraint("Symmetric", 1, 2, 46, 2, -2))
sketch5.addConstraint(Sketcher.Constraint("Parallel", 1, 4))
sketch5.addConstraint(Sketcher.Constraint("Parallel", 2, 5))
sketch5.addConstraint(Sketcher.Constraint("Parallel", 4, 13))
sketch5.addConstraint(Sketcher.Constraint("Parallel", 5, 14))
sketch5.addConstraint(Sketcher.Constraint("Parallel", 13, 16))
sketch5.addConstraint(Sketcher.Constraint("Parallel", 14, 17))
sketch5.addConstraint(Sketcher.Constraint("Parallel", 16, 31))
sketch5.addConstraint(Sketcher.Constraint("Parallel", 17, 32))
sketch5.addConstraint(Sketcher.Constraint("Parallel", 31, 34))
sketch5.addConstraint(Sketcher.Constraint("Parallel", 35, 44))
sketch5.addConstraint(Sketcher.Constraint("Parallel", 43, 46))
sketch5.addConstraint(Sketcher.Constraint("Horizontal", 0, 3, 6, 3))
sketch5.addConstraint(Sketcher.Constraint("Horizontal", 12, 3, 18, 3))
sketch5.addConstraint(Sketcher.Constraint("Horizontal", 1, 2, 4, 2))
sketch5.addConstraint(Sketcher.Constraint("Horizontal", 13, 2, 16, 2))
sketch5.addConstraint(Sketcher.Constraint("Vertical", 6, 3, 12, 3))
sketch5.addConstraint(Sketcher.Constraint("Vertical", 0, 3, 18, 3))
sketch5.addConstraint(Sketcher.Constraint("Vertical", 4, 2, 13, 2))
sketch5.addConstraint(Sketcher.Constraint("Vertical", 3, 2, 14, 2))
sketch5.addConstraint(Sketcher.Constraint("Equal", 11, 19))
sketch5.addConstraint(Sketcher.Constraint("Radius", 8, 2.0))
sketch5.addConstraint(Sketcher.Constraint("Radius", 0, 0.5))
sketch5.addConstraint(Sketcher.Constraint("DistanceY", 9, 2, 9, 1, 12.0))
sketch5.addConstraint(Sketcher.Constraint("Angle", 1, Q("60 deg")))
sketch5.addConstraint(Sketcher.Constraint("DistanceX", 8, 3, -1, 1, 48.0))
sketch5.addConstraint(Sketcher.Constraint("DistanceX", 20, 3, -1, 1, 39.0))
sketch5.addConstraint(Sketcher.Constraint("DistanceX", 3, 2, 3, 1, 3.14))
sketch5.addConstraint(Sketcher.Constraint("DistanceY", -1, 1, 2, 2, 18.5))
sketch5.addConstraint(Sketcher.Constraint("Distance", 2, 3.14))
sketch5.addConstraint(Sketcher.Constraint("Distance", 1, 1.154701))
pocket3 = doc.addObject("PartDesign::Pocket", "Pocket002")
body.addObject(pocket3)
pocket3.Profile = sketch5
pocket3.Type = "ThroughAll"
pocket3.Midplane = True

sketch6 = doc.addObject("Sketcher::SketchObject", "Sketch005")
body.addObject(sketch6)
sketch6.AttachmentSupport = (doc.XY_Plane, [""])
sketch6.MapMode = "FlatFace"
sketch6.AttachmentOffset = App.Placement(V(0, 0, 1.5), App.Rotation())
sketch6.addGeometry(Part.LineSegment(V(-12.8, 10.2, 0), V(-32, 10.2, 0)), False)
sketch6.addGeometry(Part.ArcOfCircle(Part.Circle(V(-32, 8.2, 0), V(0, 0, 1), 2), math.radians(90), math.radians(180)), False)
sketch6.addGeometry(Part.LineSegment(V(-34, 8.2, 0), V(-34, 3.9, 0)), False)
sketch6.addGeometry(Part.ArcOfCircle(Part.Circle(V(-32, 3.9, 0), V(0, 0, 1), 2), math.radians(-180), math.radians(-90)), False)
sketch6.addGeometry(Part.LineSegment(V(-32, 1.9, 0), V(-12.8, 1.9, 0)), False)
sketch6.addGeometry(Part.ArcOfCircle(Part.Circle(V(-12.8, 3.9, 0), V(0, 0, 1), 2), math.radians(-90), math.radians(0)), False)
sketch6.addGeometry(Part.LineSegment(V(-10.8, 3.9, 0), V(-10.8, 8.2, 0)), False)
sketch6.addGeometry(Part.ArcOfCircle(Part.Circle(V(-12.8, 8.2, 0), V(0, 0, 1), 2), math.radians(0), math.radians(90)), False)
sketch6.addConstraint(Sketcher.Constraint("Tangent", 0, 2, 1, 1))
sketch6.addConstraint(Sketcher.Constraint("Tangent", 1, 2, 2, 1))
sketch6.addConstraint(Sketcher.Constraint("Tangent", 2, 2, 3, 1))
sketch6.addConstraint(Sketcher.Constraint("Tangent", 3, 2, 4, 1))
sketch6.addConstraint(Sketcher.Constraint("Tangent", 4, 2, 5, 1))
sketch6.addConstraint(Sketcher.Constraint("Tangent", 5, 2, 6, 1))
sketch6.addConstraint(Sketcher.Constraint("Tangent", 6, 2, 7, 1))
sketch6.addConstraint(Sketcher.Constraint("Tangent", 7, 2, 0, 1))
sketch6.addConstraint(Sketcher.Constraint("Horizontal", 0))
sketch6.addConstraint(Sketcher.Constraint("Vertical", 2))
sketch6.addConstraint(Sketcher.Constraint("Horizontal", 4))
sketch6.addConstraint(Sketcher.Constraint("Vertical", 6))
sketch6.addConstraint(Sketcher.Constraint("Equal", 1, 3))
sketch6.addConstraint(Sketcher.Constraint("Equal", 3, 5))
sketch6.addConstraint(Sketcher.Constraint("Equal", 5, 7))
sketch6.addConstraint(Sketcher.Constraint("Radius", 1, 2.0))
sketch6.addConstraint(Sketcher.Constraint("DistanceY", 2, 2, 2, 1, 4.3))
sketch6.addConstraint(Sketcher.Constraint("DistanceX", 1, 3, -1, 1, 32.0))
sketch6.addConstraint(Sketcher.Constraint("DistanceX", 0, 2, 0, 1, 19.22))
sketch6.addConstraint(Sketcher.Constraint("DistanceY", -1, 1, 1, 3, 8.2))
pocket4 = doc.addObject("PartDesign::Pocket", "Pocket003")
body.addObject(pocket4)
pocket4.Profile = sketch6
pocket4.Type = "ThroughAll"
pocket4.Midplane = True

doc.recompute()
